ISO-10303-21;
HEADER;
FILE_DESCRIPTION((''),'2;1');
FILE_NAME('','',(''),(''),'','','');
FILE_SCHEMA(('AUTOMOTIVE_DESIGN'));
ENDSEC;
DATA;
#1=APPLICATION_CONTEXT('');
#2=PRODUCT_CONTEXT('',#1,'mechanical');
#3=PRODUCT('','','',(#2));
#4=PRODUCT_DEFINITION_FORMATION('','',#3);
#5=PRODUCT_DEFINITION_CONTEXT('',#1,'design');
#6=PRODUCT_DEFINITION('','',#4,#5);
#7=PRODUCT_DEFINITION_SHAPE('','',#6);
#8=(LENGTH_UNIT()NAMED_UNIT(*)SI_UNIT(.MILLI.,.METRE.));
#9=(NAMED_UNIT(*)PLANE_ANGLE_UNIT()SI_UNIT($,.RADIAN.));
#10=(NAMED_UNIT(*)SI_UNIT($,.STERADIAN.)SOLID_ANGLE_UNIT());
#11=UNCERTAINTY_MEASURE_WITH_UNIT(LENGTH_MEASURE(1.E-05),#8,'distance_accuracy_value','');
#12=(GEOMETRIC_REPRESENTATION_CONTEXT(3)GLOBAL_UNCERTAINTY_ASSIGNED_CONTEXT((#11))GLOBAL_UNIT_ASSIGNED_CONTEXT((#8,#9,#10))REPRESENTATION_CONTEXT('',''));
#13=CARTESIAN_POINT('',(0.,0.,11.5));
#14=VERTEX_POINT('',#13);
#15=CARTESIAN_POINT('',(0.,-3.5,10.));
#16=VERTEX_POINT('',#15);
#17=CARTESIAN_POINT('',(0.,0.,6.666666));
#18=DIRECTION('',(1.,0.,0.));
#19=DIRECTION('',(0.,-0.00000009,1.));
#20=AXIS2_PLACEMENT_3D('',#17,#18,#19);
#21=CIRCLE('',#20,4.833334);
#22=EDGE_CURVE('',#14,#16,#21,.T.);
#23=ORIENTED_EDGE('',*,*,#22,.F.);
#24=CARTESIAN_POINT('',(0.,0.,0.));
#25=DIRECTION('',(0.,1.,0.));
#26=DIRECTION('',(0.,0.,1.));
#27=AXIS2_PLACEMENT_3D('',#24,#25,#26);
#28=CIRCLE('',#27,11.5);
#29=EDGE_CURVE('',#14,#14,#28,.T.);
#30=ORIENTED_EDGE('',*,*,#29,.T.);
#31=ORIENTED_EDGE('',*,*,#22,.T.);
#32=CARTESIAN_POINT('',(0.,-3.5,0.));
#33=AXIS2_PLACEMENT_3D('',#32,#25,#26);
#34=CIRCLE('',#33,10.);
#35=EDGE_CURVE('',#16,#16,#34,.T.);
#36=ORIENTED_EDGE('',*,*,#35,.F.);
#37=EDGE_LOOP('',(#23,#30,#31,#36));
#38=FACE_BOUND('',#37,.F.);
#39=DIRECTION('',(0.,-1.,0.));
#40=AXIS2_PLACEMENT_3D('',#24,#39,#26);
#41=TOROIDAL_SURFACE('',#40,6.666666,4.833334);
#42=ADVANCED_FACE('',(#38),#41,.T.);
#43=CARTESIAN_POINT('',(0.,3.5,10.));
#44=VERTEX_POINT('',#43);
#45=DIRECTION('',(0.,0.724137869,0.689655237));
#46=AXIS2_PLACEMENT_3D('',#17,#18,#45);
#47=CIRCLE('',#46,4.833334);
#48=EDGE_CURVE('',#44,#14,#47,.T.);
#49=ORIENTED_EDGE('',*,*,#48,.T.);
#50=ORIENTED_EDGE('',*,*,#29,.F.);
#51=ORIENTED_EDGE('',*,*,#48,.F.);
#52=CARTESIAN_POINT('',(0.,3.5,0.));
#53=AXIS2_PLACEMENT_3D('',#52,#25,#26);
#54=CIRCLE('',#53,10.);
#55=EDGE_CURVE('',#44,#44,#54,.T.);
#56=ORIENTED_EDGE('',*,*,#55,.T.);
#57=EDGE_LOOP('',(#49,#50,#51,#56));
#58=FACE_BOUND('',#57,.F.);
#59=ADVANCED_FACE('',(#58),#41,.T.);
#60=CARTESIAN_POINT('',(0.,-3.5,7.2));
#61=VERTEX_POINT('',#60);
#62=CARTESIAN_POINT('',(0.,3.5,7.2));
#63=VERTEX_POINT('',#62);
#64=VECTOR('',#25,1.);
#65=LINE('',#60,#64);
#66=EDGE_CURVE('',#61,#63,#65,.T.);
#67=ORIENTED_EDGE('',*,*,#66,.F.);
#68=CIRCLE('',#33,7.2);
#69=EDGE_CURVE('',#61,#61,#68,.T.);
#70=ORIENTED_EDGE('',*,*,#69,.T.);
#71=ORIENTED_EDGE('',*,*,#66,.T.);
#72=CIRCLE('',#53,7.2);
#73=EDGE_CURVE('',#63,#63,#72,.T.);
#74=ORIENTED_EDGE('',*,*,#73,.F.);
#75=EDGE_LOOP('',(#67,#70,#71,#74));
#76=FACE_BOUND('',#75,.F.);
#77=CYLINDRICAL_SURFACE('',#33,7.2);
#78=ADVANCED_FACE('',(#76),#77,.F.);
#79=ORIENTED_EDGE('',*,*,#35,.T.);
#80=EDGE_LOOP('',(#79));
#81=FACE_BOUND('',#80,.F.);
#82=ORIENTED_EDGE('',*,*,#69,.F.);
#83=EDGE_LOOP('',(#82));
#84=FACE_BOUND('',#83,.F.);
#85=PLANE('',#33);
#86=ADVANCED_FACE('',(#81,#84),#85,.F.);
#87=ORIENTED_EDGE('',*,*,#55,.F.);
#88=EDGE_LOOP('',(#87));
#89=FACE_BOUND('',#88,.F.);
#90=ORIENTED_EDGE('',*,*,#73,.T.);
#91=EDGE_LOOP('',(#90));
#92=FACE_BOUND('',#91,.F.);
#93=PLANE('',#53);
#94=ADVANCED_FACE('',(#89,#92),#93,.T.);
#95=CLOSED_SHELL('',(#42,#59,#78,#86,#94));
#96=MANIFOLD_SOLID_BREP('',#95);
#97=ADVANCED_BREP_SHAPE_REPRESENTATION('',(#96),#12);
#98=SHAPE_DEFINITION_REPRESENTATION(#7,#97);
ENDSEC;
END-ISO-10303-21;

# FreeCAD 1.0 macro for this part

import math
import FreeCAD as App
import Part
import Sketcher
from FreeCAD import Vector

doc = App.newDocument("Part")
body = doc.addObject("PartDesign::Body", "Body")

# Sketch on YZ plane
sketch1 = body.newObject("Sketcher::SketchObject", "Sketch")
sketch1.AttachmentSupport = (doc.getObject("YZ_Plane"), [""])
sketch1.MapMode = "FlatFace"
sketch1.addGeometry([
    Part.LineSegment(Vector(-3.5, 10, 0), Vector(-3.5, 7.2, 0)),  # 0
    Part.LineSegment(Vector(-3.5, 7.2, 0), Vector(3.5, 7.2, 0)),  # 1
    Part.LineSegment(Vector(3.5, 7.2, 0), Vector(3.5, 10, 0)),  # 2
    Part.ArcOfCircle(Part.Circle(Vector(0, 6.7, 0), Vector(0, 0, 1), 4.8), math.radians(44), math.radians(90)),  # 3
    Part.ArcOfCircle(Part.Circle(Vector(0, 6.7, 0), Vector(0, 0, 1), 4.8), math.radians(90), math.radians(136)),  # 4
], False)
sketch1.addConstraint([
    Sketcher.Constraint("Coincident", 0, 2, 1, 1),
    Sketcher.Constraint("Coincident", 1, 2, 2, 1),
    Sketcher.Constraint("Coincident", 2, 2, 3, 1),
    Sketcher.Constraint("Tangent", 3, 2, 4, 1),
    Sketcher.Constraint("Coincident", 4, 2, 0, 1),
    Sketcher.Constraint("Vertical", 0),
    Sketcher.Constraint("Horizontal", 1),
    Sketcher.Constraint("Vertical", 2),
    Sketcher.Constraint("Equal", 3, 4),
    Sketcher.Constraint("Symmetric", 2, 2, 4, 2, -2),
    Sketcher.Constraint("PointOnObject", 3, 2, -2),
    Sketcher.Constraint("DistanceX", 1, 1, 1, 2, 7.0),
    Sketcher.Constraint("DistanceY", 0, 2, 0, 1, 2.8),
    Sketcher.Constraint("DistanceY", -1, 1, 2, 2, 10.0),
    Sketcher.Constraint("DistanceY", -1, 1, 3, 2, 11.5),
])
revolution = body.newObject("PartDesign::Revolution", "Revolution")
revolution.Profile = sketch1
revolution.ReferenceAxis = (sketch1, ["H_Axis"])
revolution.Angle = 360

doc.recompute()
